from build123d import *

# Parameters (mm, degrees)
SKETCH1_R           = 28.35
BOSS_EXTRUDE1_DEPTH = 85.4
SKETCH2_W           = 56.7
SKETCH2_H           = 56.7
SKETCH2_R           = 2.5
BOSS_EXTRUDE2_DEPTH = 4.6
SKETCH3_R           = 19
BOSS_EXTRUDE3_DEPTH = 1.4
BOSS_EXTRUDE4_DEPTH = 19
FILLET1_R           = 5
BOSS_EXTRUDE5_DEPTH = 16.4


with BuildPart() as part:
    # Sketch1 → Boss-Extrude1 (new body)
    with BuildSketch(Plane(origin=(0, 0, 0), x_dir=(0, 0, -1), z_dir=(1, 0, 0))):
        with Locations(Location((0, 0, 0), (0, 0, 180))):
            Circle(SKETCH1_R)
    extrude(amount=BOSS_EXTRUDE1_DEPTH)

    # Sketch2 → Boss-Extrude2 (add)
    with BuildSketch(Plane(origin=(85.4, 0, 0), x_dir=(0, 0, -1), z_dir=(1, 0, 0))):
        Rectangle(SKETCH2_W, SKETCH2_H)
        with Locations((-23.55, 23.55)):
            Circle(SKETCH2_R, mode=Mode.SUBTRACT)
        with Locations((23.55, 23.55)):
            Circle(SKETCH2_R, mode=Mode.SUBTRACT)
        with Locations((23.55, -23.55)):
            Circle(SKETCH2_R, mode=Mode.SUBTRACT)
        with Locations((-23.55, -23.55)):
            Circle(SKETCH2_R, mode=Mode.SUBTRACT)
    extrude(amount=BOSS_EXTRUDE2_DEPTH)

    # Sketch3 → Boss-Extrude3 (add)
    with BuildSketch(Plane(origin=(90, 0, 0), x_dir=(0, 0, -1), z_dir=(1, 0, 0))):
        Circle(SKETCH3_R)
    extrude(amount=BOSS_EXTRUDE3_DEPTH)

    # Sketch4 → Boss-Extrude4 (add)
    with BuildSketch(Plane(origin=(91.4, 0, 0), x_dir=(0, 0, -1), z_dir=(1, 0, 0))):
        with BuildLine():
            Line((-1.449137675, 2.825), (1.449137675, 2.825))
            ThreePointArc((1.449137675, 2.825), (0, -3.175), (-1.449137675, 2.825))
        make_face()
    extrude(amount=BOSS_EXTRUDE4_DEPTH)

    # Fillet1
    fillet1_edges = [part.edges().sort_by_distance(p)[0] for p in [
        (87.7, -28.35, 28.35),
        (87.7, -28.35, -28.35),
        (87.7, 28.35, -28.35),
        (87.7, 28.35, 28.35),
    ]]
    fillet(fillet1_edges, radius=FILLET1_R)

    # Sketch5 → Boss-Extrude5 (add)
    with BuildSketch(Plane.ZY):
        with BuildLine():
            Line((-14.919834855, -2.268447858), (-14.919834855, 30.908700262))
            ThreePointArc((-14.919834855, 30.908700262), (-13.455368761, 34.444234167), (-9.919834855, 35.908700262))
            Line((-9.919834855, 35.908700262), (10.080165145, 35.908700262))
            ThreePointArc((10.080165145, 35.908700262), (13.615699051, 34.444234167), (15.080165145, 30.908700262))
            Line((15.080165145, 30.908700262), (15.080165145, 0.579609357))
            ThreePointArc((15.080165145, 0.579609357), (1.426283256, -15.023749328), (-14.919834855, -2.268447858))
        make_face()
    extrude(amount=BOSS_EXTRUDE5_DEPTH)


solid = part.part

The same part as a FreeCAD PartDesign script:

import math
import FreeCAD as App
import Part
import Sketcher

V = App.Vector
Q = App.Units.Quantity


def edges_at(feature, points):
    """Names of the edges that pass closest to the given points."""
    edges = feature.Shape.Edges
    near = lambda p: min(range(len(edges)), key=lambda i: edges[i].distToShape(Part.Vertex(*p))[0])
    return sorted({f"Edge{near(p) + 1}" for p in points})

doc = App.newDocument("Part")
body = doc.addObject("PartDesign::Body", "Body")

sketch1 = doc.addObject("Sketcher::SketchObject", "Sketch")
body.addObject(sketch1)
sketch1.AttachmentSupport = (doc.YZ_Plane, [""])
sketch1.MapMode = "FlatFace"
sketch1.addGeometry(Part.Circle(V(0, 0, 0), V(0, 0, 1), 28.35), False)
sketch1.addConstraint([
    Sketcher.Constraint("Coincident", 0, 3, -1, 1),
    Sketcher.Constraint("Diameter", 0, Q("56.7 mm")),
])
pad1 = doc.addObject("PartDesign::Pad", "Pad")
body.addObject(pad1)
pad1.Profile = sketch1
pad1.Length = 85.4

sketch2 = doc.addObject("Sketcher::SketchObject", "Sketch001")
body.addObject(sketch2)
sketch2.AttachmentSupport = (doc.YZ_Plane, [""])
sketch2.MapMode = "FlatFace"
sketch2.AttachmentOffset = App.Placement(V(0, 0, 85.4), App.Rotation())
sketch2.addGeometry([
    Part.LineSegment(V(28.35, 28.35, 0), V(-28.35, 28.35, 0)),
    Part.LineSegment(V(-28.35, 28.35, 0), V(-28.35, -28.35, 0)),
    Part.LineSegment(V(-28.35, -28.35, 0), V(28.35, -28.35, 0)),
    Part.LineSegment(V(28.35, -28.35, 0), V(28.35, 28.35, 0)),
    Part.Circle(V(-23.55, 23.55, 0), V(0, 0, 1), 2.5),
    Part.Circle(V(-23.55, -23.55, 0), V(0, 0, 1), 2.5),
    Part.Circle(V(23.55, 23.55, 0), V(0, 0, 1), 2.5),
    Part.Circle(V(23.55, -23.55, 0), V(0, 0, 1), 2.5),
], False)
sketch2.addConstraint([
    Sketcher.Constraint("Coincident", 0, 2, 1, 1),
    Sketcher.Constraint("Coincident", 1, 2, 2, 1),
    Sketcher.Constraint("Coincident", 2, 2, 3, 1),
    Sketcher.Constraint("Coincident", 3, 2, 0, 1),
    Sketcher.Constraint("Horizontal", 0),
    Sketcher.Constraint("Vertical", 1),
    Sketcher.Constraint("Horizontal", 2),
    Sketcher.Constraint("Vertical", 3),
    Sketcher.Constraint("Equal", 4, 5),
    Sketcher.Constraint("Equal", 5, 6),
    Sketcher.Constraint("Equal", 6, 7),
    Sketcher.Constraint("Symmetric", 5, 3, 6, 3, -1, 1),
    Sketcher.Constraint("Symmetric", 4, 3, 7, 3, -1, 1),
    Sketcher.Constraint("Symmetric", 0, 2, 2, 2, -1, 1),
    Sketcher.Constraint("Symmetric", 4, 3, 6, 3, -2),
    Sketcher.Constraint("Equal", 2, 1),
    Sketcher.Constraint("Diameter", 4, Q("5 mm")),
    Sketcher.Constraint("DistanceX", 0, 2, 0, 1, Q("56.7 mm")),
    Sketcher.Constraint("DistanceY", 5, 3, 4, 3, Q("47.1 mm")),
    Sketcher.Constraint("DistanceX", 4, 3, 6, 3, Q("47.1 mm")),
])
pad2 = doc.addObject("PartDesign::Pad", "Pad001")
body.addObject(pad2)
pad2.Profile = sketch2
pad2.Length = 4.6

sketch3 = doc.addObject("Sketcher::SketchObject", "Sketch002")
body.addObject(sketch3)
sketch3.AttachmentSupport = (doc.YZ_Plane, [""])
sketch3.MapMode = "FlatFace"
sketch3.AttachmentOffset = App.Placement(V(0, 0, 90), App.Rotation())
sketch3.addGeometry(Part.Circle(V(0, 0, 0), V(0, 0, 1), 19), False)
sketch3.addConstraint([
    Sketcher.Constraint("Coincident", 0, 3, -1, 1),
    Sketcher.Constraint("Diameter", 0, Q("38 mm")),
])
pad3 = doc.addObject("PartDesign::Pad", "Pad002")
body.addObject(pad3)
pad3.Profile = sketch3
pad3.Length = 1.4

sketch4 = doc.addObject("Sketcher::SketchObject", "Sketch003")
body.addObject(sketch4)
sketch4.AttachmentSupport = (doc.YZ_Plane, [""])
sketch4.MapMode = "FlatFace"
sketch4.AttachmentOffset = App.Placement(V(0, 0, 91.4), App.Rotation())
sketch4.addGeometry([
    Part.LineSegment(V(2.825, -1.449138, 0), V(2.825, 1.449138, 0)),
    Part.ArcOfCircle(Part.Circle(V(0, 0, 0), V(0, 0, 1), 3.175), math.radians(27.156421), math.radians(332.843579)),
], False)
sketch4.addConstraint([
    Sketcher.Constraint("Coincident", 0, 1, 1, 2),
    Sketcher.Constraint("Coincident", 1, 1, 0, 2),
    Sketcher.Constraint("Vertical", 0),
    Sketcher.Constraint("Coincident", 1, 3, -1, 1),
    Sketcher.Constraint("Radius", 1, Q("3.175 mm")),
    Sketcher.Constraint("DistanceX", -1, 1, 0, 1, Q("2.825 mm")),
])
pad4 = doc.addObject("PartDesign::Pad", "Pad003")
body.addObject(pad4)
pad4.Profile = sketch4
pad4.Length = 19
doc.recompute()

fillet = doc.addObject("PartDesign::Fillet", "Fillet")
body.addObject(fillet)
fillet.Base = (pad4, edges_at(pad4, [
    (87.7, -28.35, 28.35),
    (87.7, -28.35, -28.35),
    (87.7, 28.35, -28.35),
    (87.7, 28.35, 28.35),
]))
fillet.Radius = 5

sketch5 = doc.addObject("Sketcher::SketchObject", "Sketch004")
body.addObject(sketch5)
sketch5.AttachmentSupport = (doc.YZ_Plane, [""])
sketch5.MapMode = "FlatFace"
sketch5.addGeometry([
    Part.LineSegment(V(30.9087, -14.919835, 0), V(-2.268448, -14.919835, 0)),
    Part.ArcOfCircle(Part.Circle(V(0, 0, 0), V(0, 0, 1), 15.0913), math.radians(87.798908), math.radians(261.354822)),
    Part.LineSegment(V(0.579609, 15.080165, 0), V(30.9087, 15.080165, 0)),
    Part.ArcOfCircle(Part.Circle(V(30.9087, 10.080165, 0), V(0, 0, 1), 5), math.radians(0), math.radians(90)),
    Part.LineSegment(V(35.9087, 10.080165, 0), V(35.9087, -9.919835, 0)),
    Part.ArcOfCircle(Part.Circle(V(30.9087, -9.919835, 0), V(0, 0, 1), 5), math.radians(-90), math.radians(0)),
], False)
sketch5.addConstraint([
    Sketcher.Constraint("Coincident", 0, 2, 1, 2),
    Sketcher.Constraint("Coincident", 1, 1, 2, 1),
    Sketcher.Constraint("Tangent", 2, 2, 3, 2),
    Sketcher.Constraint("Tangent", 3, 1, 4, 1),
    Sketcher.Constraint("Tangent", 4, 2, 5, 2),
    Sketcher.Constraint("Tangent", 5, 1, 0, 1),
    Sketcher.Constraint("Horizontal", 0),
    Sketcher.Constraint("Horizontal", 2),
    Sketcher.Constraint("Vertical", 4),
    Sketcher.Constraint("Coincident", 1, 3, -1, 1),
    Sketcher.Constraint("Equal", 3, 5),
    Sketcher.Constraint("Radius", 3, Q("5 mm")),
    Sketcher.Constraint("DistanceY", 4, 2, 4, 1, Q("20 mm")),
    Sketcher.Constraint("Radius", 1, Q("15.0913 mm")),
    Sketcher.Constraint("DistanceX", 0, 2, 0, 1, Q("33.177148 mm")),
    Sketcher.Constraint("DistanceX", 2, 1, 2, 2, Q("30.329091 mm")),
])
pad5 = doc.addObject("PartDesign::Pad", "Pad004")
body.addObject(pad5)
pad5.Profile = sketch5
pad5.Length = 16.4
pad5.Reversed = True

doc.recompute()
